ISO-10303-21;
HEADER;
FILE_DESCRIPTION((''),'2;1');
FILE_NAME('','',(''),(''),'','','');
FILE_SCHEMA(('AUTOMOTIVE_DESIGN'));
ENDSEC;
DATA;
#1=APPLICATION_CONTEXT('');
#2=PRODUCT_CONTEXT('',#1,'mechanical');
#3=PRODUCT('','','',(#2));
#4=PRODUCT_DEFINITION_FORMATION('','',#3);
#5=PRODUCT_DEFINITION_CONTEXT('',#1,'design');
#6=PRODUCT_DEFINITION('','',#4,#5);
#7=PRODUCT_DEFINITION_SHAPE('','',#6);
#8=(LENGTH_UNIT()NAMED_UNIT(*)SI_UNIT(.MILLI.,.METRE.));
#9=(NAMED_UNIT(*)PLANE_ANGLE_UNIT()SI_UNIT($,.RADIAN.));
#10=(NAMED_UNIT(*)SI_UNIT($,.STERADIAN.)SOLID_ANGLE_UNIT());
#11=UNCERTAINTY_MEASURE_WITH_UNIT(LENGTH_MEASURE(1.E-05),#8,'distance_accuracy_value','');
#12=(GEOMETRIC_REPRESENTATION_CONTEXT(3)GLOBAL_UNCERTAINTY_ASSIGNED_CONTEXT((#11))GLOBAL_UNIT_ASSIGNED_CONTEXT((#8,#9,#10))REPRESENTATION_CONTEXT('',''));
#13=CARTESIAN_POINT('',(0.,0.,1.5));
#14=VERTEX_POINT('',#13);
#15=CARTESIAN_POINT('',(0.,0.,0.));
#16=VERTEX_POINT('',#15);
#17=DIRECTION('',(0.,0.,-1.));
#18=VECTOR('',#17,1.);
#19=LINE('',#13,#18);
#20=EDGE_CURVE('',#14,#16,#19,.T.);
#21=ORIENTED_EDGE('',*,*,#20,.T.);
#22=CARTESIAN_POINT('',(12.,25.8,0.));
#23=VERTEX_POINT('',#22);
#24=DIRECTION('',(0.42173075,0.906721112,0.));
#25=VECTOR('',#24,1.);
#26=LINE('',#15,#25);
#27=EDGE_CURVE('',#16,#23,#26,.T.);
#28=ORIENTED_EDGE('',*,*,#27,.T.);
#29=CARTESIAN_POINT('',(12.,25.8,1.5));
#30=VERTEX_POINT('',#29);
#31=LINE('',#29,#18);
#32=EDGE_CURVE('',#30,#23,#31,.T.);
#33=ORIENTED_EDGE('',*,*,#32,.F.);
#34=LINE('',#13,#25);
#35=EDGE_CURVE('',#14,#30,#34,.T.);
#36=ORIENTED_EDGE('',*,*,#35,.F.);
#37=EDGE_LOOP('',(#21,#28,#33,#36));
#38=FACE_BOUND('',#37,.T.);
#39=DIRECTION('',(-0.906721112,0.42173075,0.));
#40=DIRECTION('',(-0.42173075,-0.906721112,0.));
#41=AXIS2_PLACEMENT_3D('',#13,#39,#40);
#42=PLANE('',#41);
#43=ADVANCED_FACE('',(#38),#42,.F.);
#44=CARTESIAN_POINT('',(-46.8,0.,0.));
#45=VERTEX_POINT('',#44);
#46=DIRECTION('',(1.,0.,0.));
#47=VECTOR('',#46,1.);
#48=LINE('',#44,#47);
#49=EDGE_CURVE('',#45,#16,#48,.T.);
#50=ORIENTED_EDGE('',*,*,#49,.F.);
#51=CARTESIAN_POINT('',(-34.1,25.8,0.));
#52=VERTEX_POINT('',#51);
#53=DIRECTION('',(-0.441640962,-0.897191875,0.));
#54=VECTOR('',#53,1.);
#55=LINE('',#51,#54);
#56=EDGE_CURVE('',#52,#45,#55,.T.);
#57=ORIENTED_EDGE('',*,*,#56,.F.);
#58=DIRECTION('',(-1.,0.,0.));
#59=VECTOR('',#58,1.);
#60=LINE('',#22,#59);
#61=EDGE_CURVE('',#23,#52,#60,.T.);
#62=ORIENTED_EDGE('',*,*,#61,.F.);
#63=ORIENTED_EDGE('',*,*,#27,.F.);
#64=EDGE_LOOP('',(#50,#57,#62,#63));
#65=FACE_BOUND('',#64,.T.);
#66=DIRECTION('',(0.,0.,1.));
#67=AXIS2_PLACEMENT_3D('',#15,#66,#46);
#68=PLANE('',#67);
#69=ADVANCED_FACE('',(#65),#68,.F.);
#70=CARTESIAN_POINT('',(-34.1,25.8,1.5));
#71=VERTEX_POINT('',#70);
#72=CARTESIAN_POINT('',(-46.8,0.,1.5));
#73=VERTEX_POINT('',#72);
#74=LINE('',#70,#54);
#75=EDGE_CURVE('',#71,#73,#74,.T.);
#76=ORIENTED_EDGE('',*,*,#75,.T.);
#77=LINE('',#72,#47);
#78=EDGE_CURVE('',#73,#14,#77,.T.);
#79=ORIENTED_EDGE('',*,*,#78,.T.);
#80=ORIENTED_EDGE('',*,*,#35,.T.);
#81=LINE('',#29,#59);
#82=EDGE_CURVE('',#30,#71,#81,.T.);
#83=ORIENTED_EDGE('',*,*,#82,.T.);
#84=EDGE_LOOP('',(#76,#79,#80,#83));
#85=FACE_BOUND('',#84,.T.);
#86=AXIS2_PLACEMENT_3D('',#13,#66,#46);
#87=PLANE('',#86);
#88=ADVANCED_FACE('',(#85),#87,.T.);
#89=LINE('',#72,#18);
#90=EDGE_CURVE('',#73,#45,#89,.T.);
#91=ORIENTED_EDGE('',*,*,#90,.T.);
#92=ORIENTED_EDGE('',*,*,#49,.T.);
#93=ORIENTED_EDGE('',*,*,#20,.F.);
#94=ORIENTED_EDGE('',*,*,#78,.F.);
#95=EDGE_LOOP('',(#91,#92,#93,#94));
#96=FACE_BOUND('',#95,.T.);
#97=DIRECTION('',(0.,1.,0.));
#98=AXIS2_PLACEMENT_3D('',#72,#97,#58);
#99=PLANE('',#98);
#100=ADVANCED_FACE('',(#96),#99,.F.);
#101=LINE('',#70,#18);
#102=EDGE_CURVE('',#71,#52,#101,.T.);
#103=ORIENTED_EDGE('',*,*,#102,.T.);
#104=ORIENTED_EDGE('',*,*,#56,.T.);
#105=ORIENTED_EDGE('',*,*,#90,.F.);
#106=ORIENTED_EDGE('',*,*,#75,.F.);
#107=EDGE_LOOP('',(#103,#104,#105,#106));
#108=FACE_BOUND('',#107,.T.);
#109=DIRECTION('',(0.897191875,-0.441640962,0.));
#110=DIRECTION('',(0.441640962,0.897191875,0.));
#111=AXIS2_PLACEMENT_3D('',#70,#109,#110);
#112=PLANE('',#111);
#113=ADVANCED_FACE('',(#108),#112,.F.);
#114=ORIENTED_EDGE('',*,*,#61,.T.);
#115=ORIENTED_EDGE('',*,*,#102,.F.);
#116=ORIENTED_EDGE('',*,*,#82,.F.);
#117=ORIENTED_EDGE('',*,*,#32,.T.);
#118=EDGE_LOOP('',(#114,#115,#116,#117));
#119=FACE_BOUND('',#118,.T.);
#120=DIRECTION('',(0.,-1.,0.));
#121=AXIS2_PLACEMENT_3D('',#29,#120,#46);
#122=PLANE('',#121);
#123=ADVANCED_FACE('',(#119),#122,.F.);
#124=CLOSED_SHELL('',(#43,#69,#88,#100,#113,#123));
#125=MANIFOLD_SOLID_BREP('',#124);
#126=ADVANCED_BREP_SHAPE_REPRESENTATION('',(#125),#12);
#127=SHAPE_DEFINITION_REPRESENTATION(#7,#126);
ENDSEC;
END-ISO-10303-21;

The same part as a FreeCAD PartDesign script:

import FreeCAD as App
import Part
import Sketcher

V = App.Vector
Q = App.Units.Quantity

doc = App.newDocument("Part")
body = doc.addObject("PartDesign::Body", "Body")

# Sketch on XY plane
sketch1 = body.newObject("Sketcher::SketchObject", "Sketch")
sketch1.AttachmentSupport = (doc.getObject("XY_Plane"), [""])
sketch1.MapMode = "FlatFace"
sketch1.addGeometry(Part.LineSegment(V(0, 0, 0), V(12, 26, 0)), False)
sketch1.addGeometry(Part.LineSegment(V(12, 26, 0), V(-34, 26, 0)), False)
sketch1.addGeometry(Part.LineSegment(V(-34, 26, 0), V(-47, 0, 0)), False)
sketch1.addGeometry(Part.LineSegment(V(-47, 0, 0), V(0, 0, 0)), False)
sketch1.addConstraint(Sketcher.Constraint("Coincident", 0, 2, 1, 1))
sketch1.addConstraint(Sketcher.Constraint("Coincident", 1, 2, 2, 1))
sketch1.addConstraint(Sketcher.Constraint("Coincident", 2, 2, 3, 1))
sketch1.addConstraint(Sketcher.Constraint("Coincident", 3, 2, 0, 1))
sketch1.addConstraint(Sketcher.Constraint("Horizontal", 1))
sketch1.addConstraint(Sketcher.Constraint("Horizontal", 3))
sketch1.addConstraint(Sketcher.Constraint("Coincident", 3, 2, -1, 1))
sketch1.addConstraint(Sketcher.Constraint("DistanceX", 1, 2, 1, 1, Q("46.1 mm")))
sketch1.addConstraint(Sketcher.Constraint("DistanceX", 3, 1, 3, 2, Q("46.8 mm")))
sketch1.addConstraint(Sketcher.Constraint("DistanceX", -1, 1, 0, 2, Q("12 mm")))
sketch1.addConstraint(Sketcher.Constraint("DistanceY", -1, 1, 0, 2, Q("25.8 mm")))
pad1 = body.newObject("PartDesign::Pad", "Pad")
pad1.Profile = sketch1
pad1.Length = 1.5

doc.recompute()
